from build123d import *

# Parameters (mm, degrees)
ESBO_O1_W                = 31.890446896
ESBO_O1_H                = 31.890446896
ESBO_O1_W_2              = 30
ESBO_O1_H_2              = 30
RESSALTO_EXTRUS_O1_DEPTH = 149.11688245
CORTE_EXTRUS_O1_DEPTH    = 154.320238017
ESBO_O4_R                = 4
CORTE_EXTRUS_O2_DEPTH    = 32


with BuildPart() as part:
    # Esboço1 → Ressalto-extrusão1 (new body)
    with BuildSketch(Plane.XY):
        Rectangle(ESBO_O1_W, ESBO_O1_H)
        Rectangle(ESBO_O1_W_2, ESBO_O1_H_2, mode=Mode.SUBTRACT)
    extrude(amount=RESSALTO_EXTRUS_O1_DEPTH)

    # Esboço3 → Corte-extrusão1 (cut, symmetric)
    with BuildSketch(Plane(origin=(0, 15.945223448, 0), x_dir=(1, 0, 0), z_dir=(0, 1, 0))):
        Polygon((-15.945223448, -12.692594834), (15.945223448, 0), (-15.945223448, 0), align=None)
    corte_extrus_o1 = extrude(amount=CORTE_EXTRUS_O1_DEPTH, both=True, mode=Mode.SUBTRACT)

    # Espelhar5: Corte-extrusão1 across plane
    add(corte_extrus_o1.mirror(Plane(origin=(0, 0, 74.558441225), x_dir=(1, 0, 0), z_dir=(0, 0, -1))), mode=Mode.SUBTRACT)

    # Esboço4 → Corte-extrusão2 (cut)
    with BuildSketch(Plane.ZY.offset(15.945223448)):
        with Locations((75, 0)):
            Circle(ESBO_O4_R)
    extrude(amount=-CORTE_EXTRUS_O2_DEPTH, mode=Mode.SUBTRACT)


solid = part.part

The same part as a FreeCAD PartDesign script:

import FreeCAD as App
import Part
import Sketcher
from FreeCAD import Vector


def add_polygon(sketch, points):
    """Adds a closed chain of lines whose ends are joined by coincident constraints."""
    first, n = sketch.GeometryCount, len(points)
    for a, b in zip(points, points[1:] + points[:1]):
        sketch.addGeometry(Part.LineSegment(App.Vector(*a, 0), App.Vector(*b, 0)), False)
    for i in range(n):
        sketch.addConstraint(Sketcher.Constraint("Coincident", first + i, 2, first + (i + 1) % n, 1))

doc = App.newDocument("Part")
body = doc.addObject("PartDesign::Body", "Body")

sketch1 = body.newObject("Sketcher::SketchObject", "Sketch")
sketch1.AttachmentSupport = (doc.getObject("XY_Plane"), [""])
sketch1.MapMode = "FlatFace"
add_polygon(sketch1, [(-16, 16), (-16, -16), (16, -16), (16, 16)])
add_polygon(sketch1, [(15, -15), (-15, -15), (-15, 15), (15, 15)])
sketch1.addConstraint(Sketcher.Constraint("Vertical", 0))
sketch1.addConstraint(Sketcher.Constraint("Horizontal", 1))
sketch1.addConstraint(Sketcher.Constraint("Vertical", 2))
sketch1.addConstraint(Sketcher.Constraint("Horizontal", 3))
sketch1.addConstraint(Sketcher.Constraint("Horizontal", 4))
sketch1.addConstraint(Sketcher.Constraint("Vertical", 5))
sketch1.addConstraint(Sketcher.Constraint("Horizontal", 6))
sketch1.addConstraint(Sketcher.Constraint("Vertical", 7))
sketch1.addConstraint(Sketcher.Constraint("Symmetric", 0, 2, 2, 2, -1, 1))
sketch1.addConstraint(Sketcher.Constraint("Symmetric", 4, 2, 6, 2, -1, 1))
sketch1.addConstraint(Sketcher.Constraint("Equal", 3, 0))
sketch1.addConstraint(Sketcher.Constraint("Equal", 6, 5))
sketch1.addConstraint(Sketcher.Constraint("DistanceX", 4, 2, 4, 1, 30.0))
sketch1.addConstraint(Sketcher.Constraint("DistanceX", 1, 1, 1, 2, 31.890447))
pad1 = body.newObject("PartDesign::Pad", "Pad")
pad1.Profile = sketch1
pad1.Length = 149.116882

sketch2 = body.newObject("Sketcher::SketchObject", "Sketch001")
sketch2.AttachmentSupport = (doc.getObject("XZ_Plane"), [""])
sketch2.MapMode = "FlatFace"
sketch2.AttachmentOffset = App.Placement(Vector(0, 0, -15.945223), App.Rotation())
add_polygon(sketch2, [(-16, 13), (16, 0), (-16, 0)])
sketch2.addConstraint(Sketcher.Constraint("Horizontal", 1))
sketch2.addConstraint(Sketcher.Constraint("Vertical", 2))
sketch2.addConstraint(Sketcher.Constraint("Symmetric", 0, 2, 1, 2, -1, 1))
sketch2.addConstraint(Sketcher.Constraint("Distance", 0, 34.323499))
sketch2.addConstraint(Sketcher.Constraint("DistanceX", 1, 2, 1, 1, 31.890447))
pocket1 = body.newObject("PartDesign::Pocket", "Pocket")
pocket1.Profile = sketch2
pocket1.Length = 308.640476
pocket1.Midplane = True
doc.recompute()

datumplane = body.newObject("PartDesign::Plane", "DatumPlane")
datumplane.AttachmentSupport = (doc.getObject("XY_Plane"), [""])
datumplane.MapMode = "FlatFace"
datumplane.AttachmentOffset = App.Placement(Vector(0, 0, 74.558441), App.Rotation())
mirrored = body.newObject("PartDesign::Mirrored", "Mirrored")
mirrored.Originals = [pocket1]
mirrored.MirrorPlane = (datumplane, [""])
body.Tip = mirrored

sketch3 = body.newObject("Sketcher::SketchObject", "Sketch002")
sketch3.AttachmentSupport = (doc.getObject("YZ_Plane"), [""])
sketch3.MapMode = "FlatFace"
sketch3.AttachmentOffset = App.Placement(Vector(0, 0, -15.945223), App.Rotation())
sketch3.addGeometry(Part.Circle(Vector(0, 75, 0), Vector(0, 0, 1), 4), False)
sketch3.addConstraint(Sketcher.Constraint("PointOnObject", 0, 3, -2))
sketch3.addConstraint(Sketcher.Constraint("Diameter", 0, 8.0))
sketch3.addConstraint(Sketcher.Constraint("DistanceY", -1, 1, 0, 3, 75.0))
pocket2 = body.newObject("PartDesign::Pocket", "Pocket001")
pocket2.Profile = sketch3
pocket2.Length = 32
pocket2.Reversed = True

doc.recompute()
